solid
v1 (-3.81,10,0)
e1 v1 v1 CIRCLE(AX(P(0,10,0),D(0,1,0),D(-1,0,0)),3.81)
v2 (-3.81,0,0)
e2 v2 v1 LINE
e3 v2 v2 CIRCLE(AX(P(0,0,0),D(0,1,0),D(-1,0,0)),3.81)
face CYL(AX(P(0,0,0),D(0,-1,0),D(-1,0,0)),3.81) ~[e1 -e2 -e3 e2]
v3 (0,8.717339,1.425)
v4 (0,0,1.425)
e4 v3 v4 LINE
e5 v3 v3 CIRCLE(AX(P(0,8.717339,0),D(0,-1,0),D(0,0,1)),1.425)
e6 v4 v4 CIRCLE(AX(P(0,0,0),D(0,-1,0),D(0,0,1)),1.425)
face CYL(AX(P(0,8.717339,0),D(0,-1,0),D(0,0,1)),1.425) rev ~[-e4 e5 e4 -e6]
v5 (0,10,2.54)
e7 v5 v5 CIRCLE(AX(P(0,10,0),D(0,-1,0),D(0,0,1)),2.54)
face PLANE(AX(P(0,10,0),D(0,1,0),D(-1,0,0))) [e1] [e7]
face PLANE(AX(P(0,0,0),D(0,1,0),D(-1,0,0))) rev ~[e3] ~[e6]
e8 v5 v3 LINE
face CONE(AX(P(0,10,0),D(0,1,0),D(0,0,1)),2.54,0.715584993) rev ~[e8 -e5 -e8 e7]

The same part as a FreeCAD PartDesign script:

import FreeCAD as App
import Part
import Sketcher
Q = App.Units.Quantity

doc = App.newDocument("Part")
body = doc.addObject("PartDesign::Body", "Body")

# Sketch on XZ plane
sketch1 = body.newObject("Sketcher::SketchObject", "Sketch")
sketch1.AttachmentSupport = (doc.getObject("XZ_Plane"), [""])
sketch1.MapMode = "FlatFace"
sketch1.addGeometry(Part.Circle(App.Vector(0, 0, 0), App.Vector(0, 0, 1), 3.8), False)
sketch1.addConstraint([
    Sketcher.Constraint("Coincident", 0, 3, -1, 1),
    Sketcher.Constraint("Diameter", 0, Q("0.3 in")),
])
pad1 = body.newObject("PartDesign::Pad", "Pad")
pad1.Profile = sketch1
pad1.Length = Q("0.3937008 in")
pad1.Reversed = True

# Sketch on XZ plane
sketch2 = body.newObject("Sketcher::SketchObject", "Sketch001")
sketch2.AttachmentSupport = (doc.getObject("XZ_Plane"), [""])
sketch2.MapMode = "FlatFace"
sketch2.AttachmentOffset = App.Placement(App.Vector(0, 0, -0.3937008 * 25.4), App.Rotation())
sketch2.addGeometry(Part.Circle(App.Vector(0, 0, 0), App.Vector(0, 0, 1), 1.4), False)
sketch2.addConstraint([
    Sketcher.Constraint("Coincident", 0, 3, -1, 1),
    Sketcher.Constraint("Diameter", 0, Q("0.1122 in")),
])
doc.recompute()
hole = body.newObject("PartDesign::Hole", "Hole")
hole.Profile = sketch2
hole.ThreadType = "None"
hole.Diameter = Q("0.1122047 in")
hole.DepthType = "ThroughAll"
hole.HoleCutType = "Countersink"
hole.HoleCutDiameter = Q("0.2 in")
hole.HoleCutCountersinkAngle = 82
hole.Reversed = True

doc.recompute()
